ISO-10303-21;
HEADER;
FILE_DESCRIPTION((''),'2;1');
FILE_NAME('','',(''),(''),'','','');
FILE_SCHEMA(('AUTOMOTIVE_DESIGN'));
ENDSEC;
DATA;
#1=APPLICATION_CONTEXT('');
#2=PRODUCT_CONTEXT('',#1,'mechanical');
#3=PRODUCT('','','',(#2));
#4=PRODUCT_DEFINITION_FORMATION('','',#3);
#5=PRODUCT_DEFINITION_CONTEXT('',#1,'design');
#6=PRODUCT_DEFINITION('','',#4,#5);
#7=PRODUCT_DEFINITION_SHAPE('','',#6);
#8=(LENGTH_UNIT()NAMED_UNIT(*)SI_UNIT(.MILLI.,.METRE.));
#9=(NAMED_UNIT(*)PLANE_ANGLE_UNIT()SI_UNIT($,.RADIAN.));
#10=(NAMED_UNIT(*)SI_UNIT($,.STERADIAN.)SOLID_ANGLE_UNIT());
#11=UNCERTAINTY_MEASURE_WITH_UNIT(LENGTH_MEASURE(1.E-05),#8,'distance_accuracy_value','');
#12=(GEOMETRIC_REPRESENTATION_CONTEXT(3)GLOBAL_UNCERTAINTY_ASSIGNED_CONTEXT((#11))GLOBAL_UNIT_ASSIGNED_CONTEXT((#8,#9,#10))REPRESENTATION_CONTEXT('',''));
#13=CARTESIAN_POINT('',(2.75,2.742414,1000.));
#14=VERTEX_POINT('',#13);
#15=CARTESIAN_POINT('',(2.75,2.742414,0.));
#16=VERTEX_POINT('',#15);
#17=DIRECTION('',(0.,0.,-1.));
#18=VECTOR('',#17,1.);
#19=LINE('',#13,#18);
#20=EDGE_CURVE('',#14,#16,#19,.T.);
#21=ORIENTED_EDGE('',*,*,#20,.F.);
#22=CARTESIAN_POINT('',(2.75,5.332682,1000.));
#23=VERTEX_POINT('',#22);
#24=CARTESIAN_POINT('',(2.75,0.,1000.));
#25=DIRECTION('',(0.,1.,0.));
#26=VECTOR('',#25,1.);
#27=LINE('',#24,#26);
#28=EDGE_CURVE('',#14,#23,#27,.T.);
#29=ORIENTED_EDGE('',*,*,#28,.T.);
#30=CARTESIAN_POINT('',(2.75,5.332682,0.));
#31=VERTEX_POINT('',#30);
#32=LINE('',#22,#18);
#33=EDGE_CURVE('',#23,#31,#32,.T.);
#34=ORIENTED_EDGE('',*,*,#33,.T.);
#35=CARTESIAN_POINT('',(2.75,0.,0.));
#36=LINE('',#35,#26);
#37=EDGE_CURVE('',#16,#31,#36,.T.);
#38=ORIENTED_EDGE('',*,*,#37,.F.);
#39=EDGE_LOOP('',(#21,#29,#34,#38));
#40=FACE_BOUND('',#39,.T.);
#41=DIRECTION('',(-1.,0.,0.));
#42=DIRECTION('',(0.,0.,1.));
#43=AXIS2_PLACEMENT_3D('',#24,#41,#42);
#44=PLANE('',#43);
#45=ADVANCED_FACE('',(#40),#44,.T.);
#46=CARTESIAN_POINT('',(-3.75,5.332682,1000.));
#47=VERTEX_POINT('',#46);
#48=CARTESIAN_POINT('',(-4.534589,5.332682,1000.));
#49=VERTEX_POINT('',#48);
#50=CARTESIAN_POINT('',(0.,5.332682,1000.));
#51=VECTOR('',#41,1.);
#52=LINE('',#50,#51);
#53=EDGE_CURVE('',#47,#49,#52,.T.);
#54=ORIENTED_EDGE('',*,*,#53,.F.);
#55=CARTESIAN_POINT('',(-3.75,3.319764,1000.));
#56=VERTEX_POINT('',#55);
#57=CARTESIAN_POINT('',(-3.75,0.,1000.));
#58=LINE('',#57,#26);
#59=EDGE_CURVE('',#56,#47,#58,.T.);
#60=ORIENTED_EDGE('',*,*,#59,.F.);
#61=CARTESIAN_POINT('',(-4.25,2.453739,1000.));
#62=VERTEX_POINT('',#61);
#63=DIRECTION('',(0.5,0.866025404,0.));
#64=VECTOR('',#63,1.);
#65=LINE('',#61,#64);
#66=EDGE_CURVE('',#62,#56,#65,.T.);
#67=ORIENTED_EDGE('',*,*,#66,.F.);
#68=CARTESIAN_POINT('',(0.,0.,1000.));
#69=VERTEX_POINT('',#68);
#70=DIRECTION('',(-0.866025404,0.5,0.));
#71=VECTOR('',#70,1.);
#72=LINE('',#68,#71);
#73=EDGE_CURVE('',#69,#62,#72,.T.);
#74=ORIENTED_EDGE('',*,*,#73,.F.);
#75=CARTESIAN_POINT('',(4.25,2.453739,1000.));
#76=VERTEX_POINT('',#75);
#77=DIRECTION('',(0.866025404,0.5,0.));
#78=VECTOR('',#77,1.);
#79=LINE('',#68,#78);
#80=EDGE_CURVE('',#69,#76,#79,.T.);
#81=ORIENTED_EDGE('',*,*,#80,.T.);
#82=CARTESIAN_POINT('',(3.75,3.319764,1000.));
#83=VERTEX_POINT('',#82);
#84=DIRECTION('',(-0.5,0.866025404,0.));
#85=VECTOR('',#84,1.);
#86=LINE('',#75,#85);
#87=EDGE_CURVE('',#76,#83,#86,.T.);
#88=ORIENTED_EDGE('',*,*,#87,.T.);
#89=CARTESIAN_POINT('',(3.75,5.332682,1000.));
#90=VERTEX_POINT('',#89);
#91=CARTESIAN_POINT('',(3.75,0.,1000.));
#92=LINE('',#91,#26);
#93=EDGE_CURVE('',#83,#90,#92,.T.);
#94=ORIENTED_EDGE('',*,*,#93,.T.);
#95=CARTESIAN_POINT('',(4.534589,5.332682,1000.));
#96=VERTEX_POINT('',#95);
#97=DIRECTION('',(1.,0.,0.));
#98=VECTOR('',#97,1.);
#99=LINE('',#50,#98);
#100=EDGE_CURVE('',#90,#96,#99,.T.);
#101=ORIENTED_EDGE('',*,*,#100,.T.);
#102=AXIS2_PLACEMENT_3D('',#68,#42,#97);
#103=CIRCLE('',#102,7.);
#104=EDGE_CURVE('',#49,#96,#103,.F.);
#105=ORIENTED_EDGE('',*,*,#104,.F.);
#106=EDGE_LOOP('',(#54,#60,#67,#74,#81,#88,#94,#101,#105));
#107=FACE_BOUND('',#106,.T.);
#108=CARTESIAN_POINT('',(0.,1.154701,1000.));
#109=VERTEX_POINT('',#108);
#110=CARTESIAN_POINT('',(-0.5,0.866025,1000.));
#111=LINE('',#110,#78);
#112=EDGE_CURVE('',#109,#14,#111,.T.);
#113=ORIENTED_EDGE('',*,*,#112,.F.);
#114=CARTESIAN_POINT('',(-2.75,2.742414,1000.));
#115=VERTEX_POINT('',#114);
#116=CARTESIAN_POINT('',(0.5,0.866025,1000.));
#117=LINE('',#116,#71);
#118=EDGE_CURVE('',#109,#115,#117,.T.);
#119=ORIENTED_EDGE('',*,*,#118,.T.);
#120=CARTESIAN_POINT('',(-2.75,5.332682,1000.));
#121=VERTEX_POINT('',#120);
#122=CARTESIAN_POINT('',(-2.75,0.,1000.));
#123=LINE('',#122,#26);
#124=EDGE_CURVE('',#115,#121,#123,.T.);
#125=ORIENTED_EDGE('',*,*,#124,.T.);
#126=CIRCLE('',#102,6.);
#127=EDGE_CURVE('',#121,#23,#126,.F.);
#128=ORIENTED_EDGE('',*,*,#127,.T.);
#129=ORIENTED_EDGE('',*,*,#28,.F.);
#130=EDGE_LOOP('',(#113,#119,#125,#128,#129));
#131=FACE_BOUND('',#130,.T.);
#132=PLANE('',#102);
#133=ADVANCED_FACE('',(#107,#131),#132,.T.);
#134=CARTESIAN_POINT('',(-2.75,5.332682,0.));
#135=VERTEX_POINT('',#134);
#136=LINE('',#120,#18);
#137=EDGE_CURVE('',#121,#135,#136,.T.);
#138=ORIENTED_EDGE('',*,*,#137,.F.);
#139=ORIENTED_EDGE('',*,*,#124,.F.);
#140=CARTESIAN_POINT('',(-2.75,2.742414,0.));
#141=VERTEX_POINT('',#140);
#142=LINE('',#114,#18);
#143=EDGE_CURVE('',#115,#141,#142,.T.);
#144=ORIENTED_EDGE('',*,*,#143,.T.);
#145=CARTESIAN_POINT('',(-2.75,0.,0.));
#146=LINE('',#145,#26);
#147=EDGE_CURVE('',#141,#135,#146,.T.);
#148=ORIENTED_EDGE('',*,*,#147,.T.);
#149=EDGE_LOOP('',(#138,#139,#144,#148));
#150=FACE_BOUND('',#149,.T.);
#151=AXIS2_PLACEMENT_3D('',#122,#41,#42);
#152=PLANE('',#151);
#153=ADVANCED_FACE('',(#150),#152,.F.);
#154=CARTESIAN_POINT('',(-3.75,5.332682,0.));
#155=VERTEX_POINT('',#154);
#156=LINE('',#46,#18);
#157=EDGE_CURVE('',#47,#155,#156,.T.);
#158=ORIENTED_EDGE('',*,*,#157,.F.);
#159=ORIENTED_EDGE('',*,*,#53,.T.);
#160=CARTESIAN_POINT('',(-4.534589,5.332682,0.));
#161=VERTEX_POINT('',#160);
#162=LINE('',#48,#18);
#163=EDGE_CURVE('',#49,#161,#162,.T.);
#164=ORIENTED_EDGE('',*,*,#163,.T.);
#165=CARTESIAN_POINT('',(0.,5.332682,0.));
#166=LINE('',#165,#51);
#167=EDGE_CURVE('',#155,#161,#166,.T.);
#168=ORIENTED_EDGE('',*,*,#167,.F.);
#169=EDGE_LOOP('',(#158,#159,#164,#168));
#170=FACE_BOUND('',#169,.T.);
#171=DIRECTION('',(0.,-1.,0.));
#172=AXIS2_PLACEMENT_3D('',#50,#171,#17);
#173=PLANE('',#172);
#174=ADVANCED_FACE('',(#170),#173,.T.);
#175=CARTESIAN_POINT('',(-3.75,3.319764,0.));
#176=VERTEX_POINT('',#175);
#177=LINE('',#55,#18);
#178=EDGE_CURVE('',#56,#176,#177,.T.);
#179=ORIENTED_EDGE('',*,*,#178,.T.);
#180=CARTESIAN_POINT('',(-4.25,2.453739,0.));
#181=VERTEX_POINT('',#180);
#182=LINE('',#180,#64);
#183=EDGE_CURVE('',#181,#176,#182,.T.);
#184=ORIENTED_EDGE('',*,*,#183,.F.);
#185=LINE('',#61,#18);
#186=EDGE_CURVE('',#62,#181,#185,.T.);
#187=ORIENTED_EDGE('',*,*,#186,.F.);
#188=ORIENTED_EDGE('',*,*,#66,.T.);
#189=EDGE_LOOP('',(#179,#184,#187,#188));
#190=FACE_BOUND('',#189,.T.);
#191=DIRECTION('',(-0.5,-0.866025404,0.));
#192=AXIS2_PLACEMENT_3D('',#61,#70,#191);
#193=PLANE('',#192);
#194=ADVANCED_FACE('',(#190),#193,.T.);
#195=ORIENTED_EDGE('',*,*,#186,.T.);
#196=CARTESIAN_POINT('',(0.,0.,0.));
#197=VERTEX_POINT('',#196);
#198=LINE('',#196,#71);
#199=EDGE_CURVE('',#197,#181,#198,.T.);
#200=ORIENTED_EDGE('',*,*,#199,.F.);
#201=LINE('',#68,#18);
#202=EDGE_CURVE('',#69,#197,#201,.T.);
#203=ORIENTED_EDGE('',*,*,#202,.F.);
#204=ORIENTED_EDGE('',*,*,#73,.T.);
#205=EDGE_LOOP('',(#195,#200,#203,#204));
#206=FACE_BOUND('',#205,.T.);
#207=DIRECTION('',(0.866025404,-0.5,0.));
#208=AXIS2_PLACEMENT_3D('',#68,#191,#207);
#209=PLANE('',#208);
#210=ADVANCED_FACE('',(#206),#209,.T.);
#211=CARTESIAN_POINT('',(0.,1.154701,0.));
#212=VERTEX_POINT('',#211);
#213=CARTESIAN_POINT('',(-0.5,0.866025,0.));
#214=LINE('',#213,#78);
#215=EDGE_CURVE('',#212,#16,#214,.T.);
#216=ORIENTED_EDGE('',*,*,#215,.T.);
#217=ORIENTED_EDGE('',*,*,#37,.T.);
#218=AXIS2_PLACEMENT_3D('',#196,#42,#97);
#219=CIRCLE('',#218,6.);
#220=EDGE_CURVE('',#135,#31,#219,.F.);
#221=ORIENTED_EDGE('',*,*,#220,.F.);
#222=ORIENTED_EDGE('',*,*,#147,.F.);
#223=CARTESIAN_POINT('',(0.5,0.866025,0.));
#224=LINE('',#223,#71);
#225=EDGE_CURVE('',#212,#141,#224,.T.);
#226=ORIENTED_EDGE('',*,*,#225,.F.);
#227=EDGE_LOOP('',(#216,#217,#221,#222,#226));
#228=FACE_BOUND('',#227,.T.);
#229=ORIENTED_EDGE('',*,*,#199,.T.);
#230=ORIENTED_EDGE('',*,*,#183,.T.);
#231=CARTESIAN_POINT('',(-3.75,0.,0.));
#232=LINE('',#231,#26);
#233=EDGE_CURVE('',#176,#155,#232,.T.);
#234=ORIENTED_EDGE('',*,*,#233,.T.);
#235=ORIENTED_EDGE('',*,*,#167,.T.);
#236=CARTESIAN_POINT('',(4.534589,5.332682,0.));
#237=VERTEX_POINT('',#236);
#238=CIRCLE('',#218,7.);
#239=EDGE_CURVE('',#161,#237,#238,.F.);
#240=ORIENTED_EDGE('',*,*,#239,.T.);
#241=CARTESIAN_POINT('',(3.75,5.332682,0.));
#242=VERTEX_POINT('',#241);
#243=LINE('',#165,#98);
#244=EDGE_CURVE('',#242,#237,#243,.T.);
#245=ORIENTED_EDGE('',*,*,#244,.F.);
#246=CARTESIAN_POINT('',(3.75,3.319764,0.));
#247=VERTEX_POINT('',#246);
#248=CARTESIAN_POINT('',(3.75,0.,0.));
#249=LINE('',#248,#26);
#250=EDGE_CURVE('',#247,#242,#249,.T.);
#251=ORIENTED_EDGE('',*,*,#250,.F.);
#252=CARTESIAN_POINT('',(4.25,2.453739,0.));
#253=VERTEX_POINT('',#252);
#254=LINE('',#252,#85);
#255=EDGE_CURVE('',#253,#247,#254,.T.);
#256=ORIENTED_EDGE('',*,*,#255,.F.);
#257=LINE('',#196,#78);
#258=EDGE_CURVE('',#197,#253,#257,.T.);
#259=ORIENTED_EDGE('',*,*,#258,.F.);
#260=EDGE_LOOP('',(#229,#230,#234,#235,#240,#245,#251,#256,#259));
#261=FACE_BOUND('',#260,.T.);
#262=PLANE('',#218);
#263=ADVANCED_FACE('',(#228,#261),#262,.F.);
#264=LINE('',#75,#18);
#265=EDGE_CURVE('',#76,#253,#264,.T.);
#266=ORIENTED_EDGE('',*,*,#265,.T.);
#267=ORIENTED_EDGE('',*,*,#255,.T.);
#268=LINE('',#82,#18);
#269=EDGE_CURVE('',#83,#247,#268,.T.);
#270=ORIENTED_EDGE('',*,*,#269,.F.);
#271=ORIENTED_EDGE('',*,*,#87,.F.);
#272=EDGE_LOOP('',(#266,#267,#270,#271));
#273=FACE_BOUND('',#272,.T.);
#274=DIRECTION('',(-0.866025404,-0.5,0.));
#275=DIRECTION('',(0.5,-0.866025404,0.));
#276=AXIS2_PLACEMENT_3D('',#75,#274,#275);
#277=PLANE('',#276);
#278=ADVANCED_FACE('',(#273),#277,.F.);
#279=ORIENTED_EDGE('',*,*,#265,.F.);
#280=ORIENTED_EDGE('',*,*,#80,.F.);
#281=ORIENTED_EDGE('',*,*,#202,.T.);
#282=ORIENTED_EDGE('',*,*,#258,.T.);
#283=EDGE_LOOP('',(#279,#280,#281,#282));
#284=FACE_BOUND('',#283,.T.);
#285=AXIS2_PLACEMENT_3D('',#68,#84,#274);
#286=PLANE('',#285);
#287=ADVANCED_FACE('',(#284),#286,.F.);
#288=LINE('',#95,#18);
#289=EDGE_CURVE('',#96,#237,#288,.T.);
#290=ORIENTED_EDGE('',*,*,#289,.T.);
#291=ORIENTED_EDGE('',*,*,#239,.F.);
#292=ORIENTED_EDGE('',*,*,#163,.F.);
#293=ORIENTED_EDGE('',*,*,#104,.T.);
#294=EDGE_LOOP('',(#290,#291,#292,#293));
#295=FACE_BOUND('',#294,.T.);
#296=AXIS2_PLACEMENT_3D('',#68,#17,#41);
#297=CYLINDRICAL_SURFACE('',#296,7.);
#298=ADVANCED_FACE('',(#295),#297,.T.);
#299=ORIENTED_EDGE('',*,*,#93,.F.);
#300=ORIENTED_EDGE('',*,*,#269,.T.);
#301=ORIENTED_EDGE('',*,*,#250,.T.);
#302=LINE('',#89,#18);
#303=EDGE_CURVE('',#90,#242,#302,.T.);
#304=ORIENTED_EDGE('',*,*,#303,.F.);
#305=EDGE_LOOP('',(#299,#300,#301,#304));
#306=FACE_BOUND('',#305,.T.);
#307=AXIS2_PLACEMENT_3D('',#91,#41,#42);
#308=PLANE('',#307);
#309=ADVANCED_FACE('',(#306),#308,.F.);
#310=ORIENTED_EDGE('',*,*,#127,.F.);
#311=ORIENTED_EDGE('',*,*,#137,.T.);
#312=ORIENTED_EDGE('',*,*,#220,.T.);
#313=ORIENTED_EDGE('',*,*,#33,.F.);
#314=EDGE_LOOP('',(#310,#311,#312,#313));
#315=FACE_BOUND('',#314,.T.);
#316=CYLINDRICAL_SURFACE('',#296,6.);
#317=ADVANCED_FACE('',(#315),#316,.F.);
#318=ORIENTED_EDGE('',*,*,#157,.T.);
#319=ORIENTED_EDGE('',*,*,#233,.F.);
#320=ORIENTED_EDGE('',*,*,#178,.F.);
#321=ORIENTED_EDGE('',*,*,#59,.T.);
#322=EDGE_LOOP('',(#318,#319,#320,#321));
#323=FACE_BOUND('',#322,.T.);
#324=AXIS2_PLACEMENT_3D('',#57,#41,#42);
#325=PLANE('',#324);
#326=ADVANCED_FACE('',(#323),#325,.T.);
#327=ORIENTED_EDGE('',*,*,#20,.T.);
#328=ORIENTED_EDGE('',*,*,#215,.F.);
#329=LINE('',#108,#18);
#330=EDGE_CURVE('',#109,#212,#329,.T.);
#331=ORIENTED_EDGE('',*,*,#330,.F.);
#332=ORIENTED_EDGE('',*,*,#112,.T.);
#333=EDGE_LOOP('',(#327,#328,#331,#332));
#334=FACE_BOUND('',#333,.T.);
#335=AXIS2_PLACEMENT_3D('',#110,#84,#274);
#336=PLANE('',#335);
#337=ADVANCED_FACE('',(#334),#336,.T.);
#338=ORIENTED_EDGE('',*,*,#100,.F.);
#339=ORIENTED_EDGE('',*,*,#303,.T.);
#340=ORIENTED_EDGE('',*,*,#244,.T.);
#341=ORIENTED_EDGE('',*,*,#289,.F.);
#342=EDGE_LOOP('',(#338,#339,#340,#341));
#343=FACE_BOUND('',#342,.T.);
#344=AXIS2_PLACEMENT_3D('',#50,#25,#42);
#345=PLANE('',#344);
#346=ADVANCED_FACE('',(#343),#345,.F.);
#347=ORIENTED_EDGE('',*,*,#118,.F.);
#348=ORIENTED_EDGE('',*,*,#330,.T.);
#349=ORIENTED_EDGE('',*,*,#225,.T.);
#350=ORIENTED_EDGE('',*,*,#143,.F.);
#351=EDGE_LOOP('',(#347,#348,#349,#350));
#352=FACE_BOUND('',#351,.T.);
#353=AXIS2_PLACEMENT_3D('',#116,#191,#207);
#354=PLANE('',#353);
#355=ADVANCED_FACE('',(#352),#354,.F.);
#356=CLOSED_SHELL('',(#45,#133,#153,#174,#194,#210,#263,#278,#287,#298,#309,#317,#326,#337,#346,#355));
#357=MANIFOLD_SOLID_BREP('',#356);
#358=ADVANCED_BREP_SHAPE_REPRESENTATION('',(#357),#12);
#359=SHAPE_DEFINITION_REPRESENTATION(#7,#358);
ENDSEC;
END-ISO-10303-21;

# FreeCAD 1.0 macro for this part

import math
import FreeCAD as App
import Part
import Sketcher

V = App.Vector
Q = App.Units.Quantity

doc = App.newDocument("Part")
body = doc.addObject("PartDesign::Body", "Body")

sketch1 = doc.addObject("Sketcher::SketchObject", "Sketch")
body.addObject(sketch1)
sketch1.AttachmentSupport = (doc.XY_Plane, [""])
sketch1.MapMode = "FlatFace"
sketch1.addGeometry(Part.LineSegment(V(-4.25, 2.453739, 0), V(0, 0, 0)), False)
sketch1.addGeometry(Part.LineSegment(V(0, 0, 0), V(4.25, 2.453739, 0)), False)
sketch1.addGeometry(Part.LineSegment(V(4.25, 2.453739, 0), V(3.75, 3.319764, 0)), False)
sketch1.addGeometry(Part.LineSegment(V(3.75, 3.319764, 0), V(3.75, 5.332682, 0)), False)
sketch1.addGeometry(Part.LineSegment(V(3.75, 5.332682, 0), V(4.534589, 5.332682, 0)), False)
sketch1.addGeometry(Part.ArcOfCircle(Part.Circle(V(0, 0, 0), V(0, 0, 1), 7), math.radians(49.624179), math.radians(130.375821)), False)
sketch1.addGeometry(Part.LineSegment(V(-4.534589, 5.332682, 0), V(-3.75, 5.332682, 0)), False)
sketch1.addGeometry(Part.LineSegment(V(-3.75, 5.332682, 0), V(-3.75, 3.319764, 0)), False)
sketch1.addGeometry(Part.LineSegment(V(-3.75, 3.319764, 0), V(-4.25, 2.453739, 0)), False)
sketch1.addGeometry(Part.LineSegment(V(0, 1.154701, 0), V(-2.75, 2.742414, 0)), False)
sketch1.addGeometry(Part.LineSegment(V(-2.75, 2.742414, 0), V(-2.75, 5.332682, 0)), False)
sketch1.addGeometry(Part.ArcOfCircle(Part.Circle(V(0, 0, 0), V(0, 0, 1), 6), math.radians(62.720387), math.radians(117.279613)), False)
sketch1.addGeometry(Part.LineSegment(V(2.75, 5.332682, 0), V(2.75, 2.742414, 0)), False)
sketch1.addGeometry(Part.LineSegment(V(2.75, 2.742414, 0), V(0, 1.154701, 0)), False)
sketch1.addConstraint(Sketcher.Constraint("Coincident", 0, 2, 1, 1))
sketch1.addConstraint(Sketcher.Constraint("Coincident", 1, 2, 2, 1))
sketch1.addConstraint(Sketcher.Constraint("Coincident", 2, 2, 3, 1))
sketch1.addConstraint(Sketcher.Constraint("Coincident", 3, 2, 4, 1))
sketch1.addConstraint(Sketcher.Constraint("Coincident", 4, 2, 5, 1))
sketch1.addConstraint(Sketcher.Constraint("Coincident", 5, 2, 6, 1))
sketch1.addConstraint(Sketcher.Constraint("Coincident", 6, 2, 7, 1))
sketch1.addConstraint(Sketcher.Constraint("Coincident", 7, 2, 8, 1))
sketch1.addConstraint(Sketcher.Constraint("Coincident", 8, 2, 0, 1))
sketch1.addConstraint(Sketcher.Constraint("Coincident", 9, 2, 10, 1))
sketch1.addConstraint(Sketcher.Constraint("Coincident", 10, 2, 11, 2))
sketch1.addConstraint(Sketcher.Constraint("Coincident", 11, 1, 12, 1))
sketch1.addConstraint(Sketcher.Constraint("Coincident", 12, 2, 13, 1))
sketch1.addConstraint(Sketcher.Constraint("Coincident", 13, 2, 9, 1))
sketch1.addConstraint(Sketcher.Constraint("Vertical", 3))
sketch1.addConstraint(Sketcher.Constraint("Horizontal", 4))
sketch1.addConstraint(Sketcher.Constraint("Horizontal", 6))
sketch1.addConstraint(Sketcher.Constraint("Vertical", 7))
sketch1.addConstraint(Sketcher.Constraint("Vertical", 10))
sketch1.addConstraint(Sketcher.Constraint("Vertical", 12))
sketch1.addConstraint(Sketcher.Constraint("Coincident", 5, 3, -1, 1))
sketch1.addConstraint(Sketcher.Constraint("Coincident", 11, 3, -1, 1))
sketch1.addConstraint(Sketcher.Constraint("Coincident", 0, 2, -1, 1))
sketch1.addConstraint(Sketcher.Constraint("Symmetric", 3, 2, 6, 2, -2))
sketch1.addConstraint(Sketcher.Constraint("Symmetric", 1, 2, 8, 2, -2))
sketch1.addConstraint(Sketcher.Constraint("Symmetric", 9, 2, 12, 2, -2))
sketch1.addConstraint(Sketcher.Constraint("PointOnObject", 13, 2, -2))
sketch1.addConstraint(Sketcher.Constraint("Perpendicular", 1, 2))
sketch1.addConstraint(Sketcher.Constraint("Perpendicular", 0, 8))
sketch1.addConstraint(Sketcher.Constraint("Perpendicular", 8, 9))
sketch1.addConstraint(Sketcher.Constraint("Horizontal", 6, 2, 10, 2))
sketch1.addConstraint(Sketcher.Constraint("Radius", 5, 7.0))
sketch1.addConstraint(Sketcher.Constraint("Radius", 11, 6.0))
sketch1.addConstraint(Sketcher.Constraint("Angle", 0, Q("-30 deg")))
sketch1.addConstraint(Sketcher.Constraint("Distance", 2, 1.0))
sketch1.addConstraint(Sketcher.Constraint("DistanceX", 7, 2, 9, 2, 1.0))
sketch1.addConstraint(Sketcher.Constraint("DistanceX", 6, 2, 3, 2, 7.5))
sketch1.addConstraint(Sketcher.Constraint("DistanceY", 10, 1, 10, 2, 2.590268))
pad1 = doc.addObject("PartDesign::Pad", "Pad")
body.addObject(pad1)
pad1.Profile = sketch1
pad1.Length = 1000

doc.recompute()
